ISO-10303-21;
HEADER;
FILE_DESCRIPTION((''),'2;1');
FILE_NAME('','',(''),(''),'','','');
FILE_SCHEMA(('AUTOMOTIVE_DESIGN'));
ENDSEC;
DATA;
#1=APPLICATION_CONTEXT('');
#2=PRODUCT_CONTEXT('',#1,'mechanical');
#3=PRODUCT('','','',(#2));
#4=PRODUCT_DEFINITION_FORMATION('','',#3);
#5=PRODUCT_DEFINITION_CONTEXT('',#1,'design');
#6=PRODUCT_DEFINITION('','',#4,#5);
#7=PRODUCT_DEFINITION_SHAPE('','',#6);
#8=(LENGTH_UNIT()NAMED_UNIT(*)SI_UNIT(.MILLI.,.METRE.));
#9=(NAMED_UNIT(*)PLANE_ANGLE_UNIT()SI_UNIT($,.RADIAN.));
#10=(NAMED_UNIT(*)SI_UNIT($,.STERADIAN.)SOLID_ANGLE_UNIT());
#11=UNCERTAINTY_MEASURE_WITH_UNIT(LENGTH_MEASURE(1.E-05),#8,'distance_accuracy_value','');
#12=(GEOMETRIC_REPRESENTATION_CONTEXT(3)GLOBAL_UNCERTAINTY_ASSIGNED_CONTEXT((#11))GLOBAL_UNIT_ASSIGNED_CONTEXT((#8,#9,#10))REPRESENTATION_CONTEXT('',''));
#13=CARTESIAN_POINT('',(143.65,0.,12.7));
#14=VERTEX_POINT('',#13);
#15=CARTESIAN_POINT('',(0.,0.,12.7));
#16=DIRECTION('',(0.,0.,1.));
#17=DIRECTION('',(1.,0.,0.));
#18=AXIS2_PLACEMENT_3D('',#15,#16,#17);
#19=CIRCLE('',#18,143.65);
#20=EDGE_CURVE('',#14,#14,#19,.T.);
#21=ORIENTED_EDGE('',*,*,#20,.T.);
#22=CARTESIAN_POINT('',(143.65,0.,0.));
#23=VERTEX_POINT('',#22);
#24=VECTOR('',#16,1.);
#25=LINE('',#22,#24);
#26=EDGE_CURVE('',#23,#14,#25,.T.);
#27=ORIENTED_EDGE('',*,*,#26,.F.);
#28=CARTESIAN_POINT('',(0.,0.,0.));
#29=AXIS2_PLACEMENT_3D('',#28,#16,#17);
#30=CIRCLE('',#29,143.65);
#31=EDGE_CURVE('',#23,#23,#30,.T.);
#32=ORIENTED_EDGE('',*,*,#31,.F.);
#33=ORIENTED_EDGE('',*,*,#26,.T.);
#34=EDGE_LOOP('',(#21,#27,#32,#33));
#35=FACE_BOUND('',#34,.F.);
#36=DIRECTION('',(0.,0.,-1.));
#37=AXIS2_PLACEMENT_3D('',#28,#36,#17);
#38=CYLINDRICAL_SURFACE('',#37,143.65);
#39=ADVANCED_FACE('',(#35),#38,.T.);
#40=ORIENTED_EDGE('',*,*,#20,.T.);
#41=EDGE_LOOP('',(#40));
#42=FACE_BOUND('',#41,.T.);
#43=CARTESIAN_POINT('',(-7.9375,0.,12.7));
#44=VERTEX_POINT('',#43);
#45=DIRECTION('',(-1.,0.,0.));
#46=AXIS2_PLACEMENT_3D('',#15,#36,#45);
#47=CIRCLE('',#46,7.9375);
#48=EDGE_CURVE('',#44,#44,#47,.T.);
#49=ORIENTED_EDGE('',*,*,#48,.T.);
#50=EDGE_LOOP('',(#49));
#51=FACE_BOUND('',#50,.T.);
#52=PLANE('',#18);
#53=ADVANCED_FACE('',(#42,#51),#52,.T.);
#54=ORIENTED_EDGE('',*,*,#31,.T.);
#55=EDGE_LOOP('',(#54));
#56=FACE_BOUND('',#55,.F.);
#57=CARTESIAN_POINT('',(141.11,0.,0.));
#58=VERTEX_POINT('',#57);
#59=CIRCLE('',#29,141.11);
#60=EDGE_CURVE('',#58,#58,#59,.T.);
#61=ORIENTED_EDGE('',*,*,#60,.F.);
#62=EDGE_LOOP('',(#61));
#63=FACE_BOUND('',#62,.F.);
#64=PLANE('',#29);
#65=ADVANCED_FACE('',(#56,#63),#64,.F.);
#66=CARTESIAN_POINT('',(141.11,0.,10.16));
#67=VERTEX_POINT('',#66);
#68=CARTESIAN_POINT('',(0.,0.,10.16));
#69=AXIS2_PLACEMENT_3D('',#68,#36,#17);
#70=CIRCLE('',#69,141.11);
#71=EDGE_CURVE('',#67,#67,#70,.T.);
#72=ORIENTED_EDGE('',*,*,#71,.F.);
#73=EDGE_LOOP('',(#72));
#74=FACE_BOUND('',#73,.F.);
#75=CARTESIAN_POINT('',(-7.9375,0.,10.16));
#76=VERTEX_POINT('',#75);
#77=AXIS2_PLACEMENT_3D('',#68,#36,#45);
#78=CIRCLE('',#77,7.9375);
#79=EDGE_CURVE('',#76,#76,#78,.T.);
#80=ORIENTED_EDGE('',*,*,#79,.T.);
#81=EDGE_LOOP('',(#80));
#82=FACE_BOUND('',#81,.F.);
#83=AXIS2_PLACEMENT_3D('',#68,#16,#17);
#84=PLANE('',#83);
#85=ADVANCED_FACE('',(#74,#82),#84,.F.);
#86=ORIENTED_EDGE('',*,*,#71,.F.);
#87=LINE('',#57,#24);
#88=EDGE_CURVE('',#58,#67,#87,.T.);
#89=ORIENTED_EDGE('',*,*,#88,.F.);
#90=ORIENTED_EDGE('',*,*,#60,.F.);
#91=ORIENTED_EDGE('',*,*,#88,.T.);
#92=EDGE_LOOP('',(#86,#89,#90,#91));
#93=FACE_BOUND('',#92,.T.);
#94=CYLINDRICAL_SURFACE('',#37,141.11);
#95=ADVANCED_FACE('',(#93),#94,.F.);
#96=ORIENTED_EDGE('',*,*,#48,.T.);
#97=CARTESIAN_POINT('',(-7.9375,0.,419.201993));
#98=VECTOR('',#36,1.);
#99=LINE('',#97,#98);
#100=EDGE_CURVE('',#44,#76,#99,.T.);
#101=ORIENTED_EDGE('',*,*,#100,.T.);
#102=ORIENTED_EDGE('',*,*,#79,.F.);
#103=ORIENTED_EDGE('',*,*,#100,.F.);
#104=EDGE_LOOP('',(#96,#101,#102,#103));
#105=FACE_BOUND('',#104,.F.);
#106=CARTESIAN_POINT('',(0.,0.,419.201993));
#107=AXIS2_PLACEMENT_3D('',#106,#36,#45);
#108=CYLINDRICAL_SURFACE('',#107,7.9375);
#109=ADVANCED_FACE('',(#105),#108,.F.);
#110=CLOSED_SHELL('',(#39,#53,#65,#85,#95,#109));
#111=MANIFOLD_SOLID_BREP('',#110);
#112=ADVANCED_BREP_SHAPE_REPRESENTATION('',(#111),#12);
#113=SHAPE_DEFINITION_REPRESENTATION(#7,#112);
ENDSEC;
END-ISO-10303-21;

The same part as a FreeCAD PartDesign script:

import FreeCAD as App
import Part
import Sketcher
from FreeCAD import Vector
Q = App.Units.Quantity


def faces_at(feature, points):
    """Names of the faces that lie closest to the given points."""
    faces = feature.Shape.Faces
    near = lambda p: min(range(len(faces)), key=lambda i: faces[i].distToShape(Part.Vertex(*p))[0])
    return sorted({f"Face{near(p) + 1}" for p in points})

doc = App.newDocument("Part")
body = doc.addObject("PartDesign::Body", "Body")

sketch1 = body.newObject("Sketcher::SketchObject", "Sketch")
sketch1.AttachmentSupport = (doc.getObject("XY_Plane"), [""])
sketch1.MapMode = "FlatFace"
sketch1.addGeometry(Part.Circle(Vector(0, 0, 0), Vector(0, 0, 1), 144), False)
sketch1.addConstraint([
    Sketcher.Constraint("Coincident", 0, 3, -1, 1),
    Sketcher.Constraint("Diameter", 0, 287.3),
])
pad1 = body.newObject("PartDesign::Pad", "Pad")
pad1.Profile = sketch1
pad1.Length = Q("0.5 in")
doc.recompute()

thickness = body.newObject("PartDesign::Thickness", "Thickness")
thickness.Base = (pad1, faces_at(pad1, [(0, 0, 0)]))
thickness.Value = Q("0.1 in")
thickness.Reversed = True
thickness.Join = "Arc"

sketch2 = body.newObject("Sketcher::SketchObject", "Sketch001")
sketch2.AttachmentSupport = (doc.getObject("XY_Plane"), [""])
sketch2.MapMode = "FlatFace"
sketch2.AttachmentOffset = App.Placement(Vector(0, 0, 0.5 * 25.4), App.Rotation())
sketch2.addGeometry(Part.Circle(Vector(0, 0, 0), Vector(0, 0, 1), 8), False)
sketch2.addConstraint([
    Sketcher.Constraint("Coincident", 0, 3, -1, 1),
    Sketcher.Constraint("Diameter", 0, Q("0.625 in")),
])
doc.recompute()
hole = body.newObject("PartDesign::Hole", "Hole")
hole.Profile = sketch2
hole.ThreadType = "None"
hole.Diameter = Q("0.625 in")
hole.DepthType = "ThroughAll"

doc.recompute()
